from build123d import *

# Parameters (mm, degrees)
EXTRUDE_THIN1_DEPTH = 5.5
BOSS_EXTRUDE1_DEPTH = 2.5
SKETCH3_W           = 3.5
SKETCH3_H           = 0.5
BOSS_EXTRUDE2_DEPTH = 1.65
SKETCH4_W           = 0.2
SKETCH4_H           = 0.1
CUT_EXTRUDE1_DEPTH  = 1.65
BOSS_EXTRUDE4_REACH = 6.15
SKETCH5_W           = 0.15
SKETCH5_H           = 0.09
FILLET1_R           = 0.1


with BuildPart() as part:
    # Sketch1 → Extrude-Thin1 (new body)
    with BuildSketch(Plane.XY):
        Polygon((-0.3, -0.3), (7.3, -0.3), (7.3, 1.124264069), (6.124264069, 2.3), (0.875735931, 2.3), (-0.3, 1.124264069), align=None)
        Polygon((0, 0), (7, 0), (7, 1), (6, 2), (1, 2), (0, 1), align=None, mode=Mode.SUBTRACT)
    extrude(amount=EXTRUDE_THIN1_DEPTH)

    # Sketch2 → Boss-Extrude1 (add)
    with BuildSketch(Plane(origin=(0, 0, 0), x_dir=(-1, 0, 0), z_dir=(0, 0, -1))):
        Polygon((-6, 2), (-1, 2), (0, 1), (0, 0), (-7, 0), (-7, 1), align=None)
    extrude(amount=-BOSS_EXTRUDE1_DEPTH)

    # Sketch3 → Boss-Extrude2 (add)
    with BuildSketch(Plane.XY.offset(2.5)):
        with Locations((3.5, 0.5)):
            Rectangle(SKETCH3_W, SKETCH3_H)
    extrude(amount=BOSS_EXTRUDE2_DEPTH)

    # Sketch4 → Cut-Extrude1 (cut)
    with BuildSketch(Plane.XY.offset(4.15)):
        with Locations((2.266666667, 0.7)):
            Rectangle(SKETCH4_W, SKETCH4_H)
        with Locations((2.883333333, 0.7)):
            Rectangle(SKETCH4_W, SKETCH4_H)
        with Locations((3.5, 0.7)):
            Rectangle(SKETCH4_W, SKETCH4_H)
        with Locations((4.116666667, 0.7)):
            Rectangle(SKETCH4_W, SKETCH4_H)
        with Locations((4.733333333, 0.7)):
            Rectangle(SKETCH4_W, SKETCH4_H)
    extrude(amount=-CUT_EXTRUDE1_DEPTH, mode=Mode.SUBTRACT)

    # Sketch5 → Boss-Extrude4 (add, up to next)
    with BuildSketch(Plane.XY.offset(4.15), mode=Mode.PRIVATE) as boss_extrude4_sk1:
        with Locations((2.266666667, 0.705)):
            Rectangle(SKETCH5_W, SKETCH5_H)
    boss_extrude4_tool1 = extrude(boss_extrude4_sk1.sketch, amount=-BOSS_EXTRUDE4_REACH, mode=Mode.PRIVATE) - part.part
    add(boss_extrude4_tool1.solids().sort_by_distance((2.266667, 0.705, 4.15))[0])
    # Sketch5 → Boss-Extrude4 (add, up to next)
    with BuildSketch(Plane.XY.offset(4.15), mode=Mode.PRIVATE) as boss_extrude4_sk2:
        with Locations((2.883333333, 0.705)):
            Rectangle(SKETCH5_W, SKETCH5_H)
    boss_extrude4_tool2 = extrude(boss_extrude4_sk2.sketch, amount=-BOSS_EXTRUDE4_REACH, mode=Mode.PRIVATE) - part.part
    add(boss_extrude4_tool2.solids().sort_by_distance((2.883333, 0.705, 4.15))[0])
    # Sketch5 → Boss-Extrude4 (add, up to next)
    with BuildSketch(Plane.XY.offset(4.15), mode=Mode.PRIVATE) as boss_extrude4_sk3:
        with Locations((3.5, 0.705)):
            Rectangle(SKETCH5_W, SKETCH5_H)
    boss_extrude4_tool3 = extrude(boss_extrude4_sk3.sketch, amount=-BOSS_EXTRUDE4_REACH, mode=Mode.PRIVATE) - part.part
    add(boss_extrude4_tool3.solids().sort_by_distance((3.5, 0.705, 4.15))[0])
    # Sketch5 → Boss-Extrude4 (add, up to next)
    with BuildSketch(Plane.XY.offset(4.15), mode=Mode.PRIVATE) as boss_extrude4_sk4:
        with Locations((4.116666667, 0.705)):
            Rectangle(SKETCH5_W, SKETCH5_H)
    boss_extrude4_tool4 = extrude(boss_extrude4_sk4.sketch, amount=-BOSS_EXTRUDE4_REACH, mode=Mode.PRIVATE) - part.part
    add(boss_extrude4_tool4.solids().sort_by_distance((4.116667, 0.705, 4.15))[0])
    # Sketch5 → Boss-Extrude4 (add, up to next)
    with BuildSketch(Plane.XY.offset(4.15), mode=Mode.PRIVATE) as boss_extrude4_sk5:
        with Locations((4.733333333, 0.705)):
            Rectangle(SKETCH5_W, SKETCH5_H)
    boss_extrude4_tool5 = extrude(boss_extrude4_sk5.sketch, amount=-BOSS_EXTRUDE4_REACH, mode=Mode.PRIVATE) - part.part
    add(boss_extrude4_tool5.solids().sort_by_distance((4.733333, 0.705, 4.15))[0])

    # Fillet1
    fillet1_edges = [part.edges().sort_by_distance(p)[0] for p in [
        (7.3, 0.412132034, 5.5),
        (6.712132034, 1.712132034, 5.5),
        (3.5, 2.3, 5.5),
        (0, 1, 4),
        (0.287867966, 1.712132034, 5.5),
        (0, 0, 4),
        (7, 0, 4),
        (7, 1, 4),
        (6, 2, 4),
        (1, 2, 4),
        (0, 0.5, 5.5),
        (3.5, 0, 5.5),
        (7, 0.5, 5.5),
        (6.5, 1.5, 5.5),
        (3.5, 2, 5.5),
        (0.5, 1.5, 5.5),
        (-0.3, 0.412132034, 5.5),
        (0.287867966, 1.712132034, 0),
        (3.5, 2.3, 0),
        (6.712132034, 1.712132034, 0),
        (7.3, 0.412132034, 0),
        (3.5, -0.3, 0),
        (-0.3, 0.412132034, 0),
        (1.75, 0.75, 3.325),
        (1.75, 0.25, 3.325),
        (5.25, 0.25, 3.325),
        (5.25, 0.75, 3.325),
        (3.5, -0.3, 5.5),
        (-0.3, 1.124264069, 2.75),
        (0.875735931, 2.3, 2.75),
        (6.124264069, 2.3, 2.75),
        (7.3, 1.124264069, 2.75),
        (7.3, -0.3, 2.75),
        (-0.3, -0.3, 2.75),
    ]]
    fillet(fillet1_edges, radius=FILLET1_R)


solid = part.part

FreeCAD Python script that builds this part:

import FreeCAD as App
import Part
import Sketcher
from FreeCAD import Vector


def edges_at(feature, points):
    """Names of the edges that pass closest to the given points."""
    edges = feature.Shape.Edges
    near = lambda p: min(range(len(edges)), key=lambda i: edges[i].distToShape(Part.Vertex(*p))[0])
    return sorted({f"Edge{near(p) + 1}" for p in points})

doc = App.newDocument("Part")
body = doc.addObject("PartDesign::Body", "Body")

# Sketch on XY plane
sketch1 = body.newObject("Sketcher::SketchObject", "Sketch")
sketch1.AttachmentSupport = (doc.getObject("XY_Plane"), [""])
sketch1.MapMode = "FlatFace"
sketch1.addGeometry([
    Part.LineSegment(Vector(-0.3, -0.3, 0), Vector(7.3, -0.3, 0)),  # 0
    Part.LineSegment(Vector(7.3, -0.3, 0), Vector(7.3, 1.1, 0)),  # 1
    Part.LineSegment(Vector(7.3, 1.1, 0), Vector(6.1, 2.3, 0)),  # 2
    Part.LineSegment(Vector(6.1, 2.3, 0), Vector(0.9, 2.3, 0)),  # 3
    Part.LineSegment(Vector(0.9, 2.3, 0), Vector(-0.3, 1.1, 0)),  # 4
    Part.LineSegment(Vector(-0.3, 1.1, 0), Vector(-0.3, -0.3, 0)),  # 5
    Part.LineSegment(Vector(7, 0, 0), Vector(0, 0, 0)),  # 6
    Part.LineSegment(Vector(0, 0, 0), Vector(0, 1, 0)),  # 7
    Part.LineSegment(Vector(0, 1, 0), Vector(1, 2, 0)),  # 8
    Part.LineSegment(Vector(1, 2, 0), Vector(6, 2, 0)),  # 9
    Part.LineSegment(Vector(6, 2, 0), Vector(7, 1, 0)),  # 10
    Part.LineSegment(Vector(7, 1, 0), Vector(7, 0, 0)),  # 11
], False)
sketch1.addConstraint([
    Sketcher.Constraint("Coincident", 0, 2, 1, 1),
    Sketcher.Constraint("Coincident", 1, 2, 2, 1),
    Sketcher.Constraint("Coincident", 2, 2, 3, 1),
    Sketcher.Constraint("Coincident", 3, 2, 4, 1),
    Sketcher.Constraint("Coincident", 4, 2, 5, 1),
    Sketcher.Constraint("Coincident", 5, 2, 0, 1),
    Sketcher.Constraint("Coincident", 6, 2, 7, 1),
    Sketcher.Constraint("Coincident", 7, 2, 8, 1),
    Sketcher.Constraint("Coincident", 8, 2, 9, 1),
    Sketcher.Constraint("Coincident", 9, 2, 10, 1),
    Sketcher.Constraint("Coincident", 10, 2, 11, 1),
    Sketcher.Constraint("Coincident", 11, 2, 6, 1),
    Sketcher.Constraint("Horizontal", 0),
    Sketcher.Constraint("Vertical", 1),
    Sketcher.Constraint("Horizontal", 3),
    Sketcher.Constraint("Vertical", 5),
    Sketcher.Constraint("Horizontal", 6),
    Sketcher.Constraint("Vertical", 7),
    Sketcher.Constraint("Horizontal", 9),
    Sketcher.Constraint("Vertical", 11),
    Sketcher.Constraint("Coincident", 6, 2, -1, 1),
    Sketcher.Constraint("Perpendicular", 2, 4),
    Sketcher.Constraint("Parallel", 4, 8),
    Sketcher.Constraint("Perpendicular", 8, 10),
    Sketcher.Constraint("Horizontal", 1, 2, 4, 2),
    Sketcher.Constraint("Horizontal", 7, 2, 10, 2),
    Sketcher.Constraint("Equal", 2, 4),
    Sketcher.Constraint("DistanceX", 6, 2, 6, 1, 7.0),
    Sketcher.Constraint("DistanceX", 9, 1, 9, 2, 5.0),
    Sketcher.Constraint("DistanceY", 7, 1, 7, 2, 1.0),
    Sketcher.Constraint("DistanceX", 0, 1, 0, 2, 7.6),
    Sketcher.Constraint("DistanceX", -1, 1, 0, 2, 7.3),
    Sketcher.Constraint("DistanceY", 0, 2, -1, 1, 0.3),
    Sketcher.Constraint("DistanceY", -1, 1, 2, 2, 2.3),
    Sketcher.Constraint("DistanceX", 3, 2, 3, 1, 5.248528),
])
pad1 = body.newObject("PartDesign::Pad", "Pad")
pad1.Profile = sketch1
pad1.Length = 5.5

# Sketch on XY plane
sketch2 = body.newObject("Sketcher::SketchObject", "Sketch001")
sketch2.AttachmentSupport = (doc.getObject("XY_Plane"), [""])
sketch2.MapMode = "FlatFace"
sketch2.addGeometry([
    Part.LineSegment(Vector(1, 2, 0), Vector(6, 2, 0)),  # 0
    Part.LineSegment(Vector(6, 2, 0), Vector(7, 1, 0)),  # 1
    Part.LineSegment(Vector(7, 1, 0), Vector(7, 0, 0)),  # 2
    Part.LineSegment(Vector(7, 0, 0), Vector(0, 0, 0)),  # 3
    Part.LineSegment(Vector(0, 0, 0), Vector(0, 1, 0)),  # 4
    Part.LineSegment(Vector(0, 1, 0), Vector(1, 2, 0)),  # 5
], False)
sketch2.addConstraint([
    Sketcher.Constraint("Coincident", 0, 2, 1, 1),
    Sketcher.Constraint("Coincident", 1, 2, 2, 1),
    Sketcher.Constraint("Coincident", 2, 2, 3, 1),
    Sketcher.Constraint("Coincident", 3, 2, 4, 1),
    Sketcher.Constraint("Coincident", 4, 2, 5, 1),
    Sketcher.Constraint("Coincident", 5, 2, 0, 1),
    Sketcher.Constraint("Horizontal", 0),
    Sketcher.Constraint("Vertical", 2),
    Sketcher.Constraint("Horizontal", 3),
    Sketcher.Constraint("Vertical", 4),
    Sketcher.Constraint("Coincident", 3, 2, -1, 1),
    Sketcher.Constraint("Perpendicular", 1, 5),
    Sketcher.Constraint("Horizontal", 1, 2, 4, 2),
    Sketcher.Constraint("Equal", 1, 5),
    Sketcher.Constraint("DistanceX", 0, 1, 0, 2, 5.0),
    Sketcher.Constraint("DistanceX", 3, 2, 3, 1, 7.0),
    Sketcher.Constraint("DistanceY", 2, 2, 2, 1, 1.0),
])
pad2 = body.newObject("PartDesign::Pad", "Pad001")
pad2.Profile = sketch2
pad2.Length = 2.5

# Sketch on XY plane
sketch3 = body.newObject("Sketcher::SketchObject", "Sketch002")
sketch3.AttachmentSupport = (doc.getObject("XY_Plane"), [""])
sketch3.MapMode = "FlatFace"
sketch3.AttachmentOffset = App.Placement(Vector(0, 0, 2.5), App.Rotation())
sketch3.addGeometry([
    Part.LineSegment(Vector(1.8, 0.8, 0), Vector(1.8, 0.2, 0)),
    Part.LineSegment(Vector(1.8, 0.2, 0), Vector(5.2, 0.2, 0)),
    Part.LineSegment(Vector(5.2, 0.2, 0), Vector(5.2, 0.8, 0)),
    Part.LineSegment(Vector(5.2, 0.8, 0), Vector(1.8, 0.8, 0)),
], False)
sketch3.addConstraint([
    Sketcher.Constraint("Coincident", 0, 2, 1, 1),
    Sketcher.Constraint("Coincident", 1, 2, 2, 1),
    Sketcher.Constraint("Coincident", 2, 2, 3, 1),
    Sketcher.Constraint("Coincident", 3, 2, 0, 1),
    Sketcher.Constraint("Vertical", 0),
    Sketcher.Constraint("Horizontal", 1),
    Sketcher.Constraint("Vertical", 2),
    Sketcher.Constraint("Horizontal", 3),
    Sketcher.Constraint("DistanceX", 1, 1, 1, 2, 3.5),
    Sketcher.Constraint("DistanceY", 0, 2, 0, 1, 0.5),
    Sketcher.Constraint("DistanceX", -1, 1, 0, 2, 1.75),
    Sketcher.Constraint("DistanceY", -1, 1, 0, 2, 0.25),
])
pad3 = body.newObject("PartDesign::Pad", "Pad002")
pad3.Profile = sketch3
pad3.Length = 1.65

# Sketch on XY plane
sketch4 = body.newObject("Sketcher::SketchObject", "Sketch003")
sketch4.AttachmentSupport = (doc.getObject("XY_Plane"), [""])
sketch4.MapMode = "FlatFace"
sketch4.AttachmentOffset = App.Placement(Vector(0, 0, 4.15), App.Rotation())
sketch4.addGeometry([
    Part.LineSegment(Vector(2.17, 0.75, 0), Vector(2.17, 0.65, 0)),  # 0
    Part.LineSegment(Vector(2.17, 0.65, 0), Vector(2.37, 0.65, 0)),  # 1
    Part.LineSegment(Vector(2.37, 0.65, 0), Vector(2.37, 0.75, 0)),  # 2
    Part.LineSegment(Vector(2.37, 0.75, 0), Vector(2.17, 0.75, 0)),  # 3
    Part.LineSegment(Vector(2.78, 0.75, 0), Vector(2.78, 0.65, 0)),  # 4
    Part.LineSegment(Vector(2.78, 0.65, 0), Vector(2.98, 0.65, 0)),  # 5
    Part.LineSegment(Vector(2.98, 0.65, 0), Vector(2.98, 0.75, 0)),  # 6
    Part.LineSegment(Vector(2.98, 0.75, 0), Vector(2.78, 0.75, 0)),  # 7
    Part.LineSegment(Vector(3.4, 0.75, 0), Vector(3.4, 0.65, 0)),  # 8
    Part.LineSegment(Vector(3.4, 0.65, 0), Vector(3.6, 0.65, 0)),  # 9
    Part.LineSegment(Vector(3.6, 0.65, 0), Vector(3.6, 0.75, 0)),  # 10
    Part.LineSegment(Vector(3.6, 0.75, 0), Vector(3.4, 0.75, 0)),  # 11
    Part.LineSegment(Vector(4.02, 0.75, 0), Vector(4.02, 0.65, 0)),  # 12
    Part.LineSegment(Vector(4.02, 0.65, 0), Vector(4.22, 0.65, 0)),  # 13
    Part.LineSegment(Vector(4.22, 0.65, 0), Vector(4.22, 0.75, 0)),  # 14
    Part.LineSegment(Vector(4.22, 0.75, 0), Vector(4.02, 0.75, 0)),  # 15
    Part.LineSegment(Vector(4.63, 0.75, 0), Vector(4.63, 0.65, 0)),  # 16
    Part.LineSegment(Vector(4.63, 0.65, 0), Vector(4.83, 0.65, 0)),  # 17
    Part.LineSegment(Vector(4.83, 0.65, 0), Vector(4.83, 0.75, 0)),  # 18
    Part.LineSegment(Vector(4.83, 0.75, 0), Vector(4.63, 0.75, 0)),  # 19
], False)
sketch4.addConstraint([
    Sketcher.Constraint("Coincident", 0, 2, 1, 1),
    Sketcher.Constraint("Coincident", 1, 2, 2, 1),
    Sketcher.Constraint("Coincident", 2, 2, 3, 1),
    Sketcher.Constraint("Coincident", 3, 2, 0, 1),
    Sketcher.Constraint("Coincident", 4, 2, 5, 1),
    Sketcher.Constraint("Coincident", 5, 2, 6, 1),
    Sketcher.Constraint("Coincident", 6, 2, 7, 1),
    Sketcher.Constraint("Coincident", 7, 2, 4, 1),
    Sketcher.Constraint("Coincident", 8, 2, 9, 1),
    Sketcher.Constraint("Coincident", 9, 2, 10, 1),
    Sketcher.Constraint("Coincident", 10, 2, 11, 1),
    Sketcher.Constraint("Coincident", 11, 2, 8, 1),
    Sketcher.Constraint("Coincident", 12, 2, 13, 1),
    Sketcher.Constraint("Coincident", 13, 2, 14, 1),
    Sketcher.Constraint("Coincident", 14, 2, 15, 1),
    Sketcher.Constraint("Coincident", 15, 2, 12, 1),
    Sketcher.Constraint("Coincident", 16, 2, 17, 1),
    Sketcher.Constraint("Coincident", 17, 2, 18, 1),
    Sketcher.Constraint("Coincident", 18, 2, 19, 1),
    Sketcher.Constraint("Coincident", 19, 2, 16, 1),
    Sketcher.Constraint("Vertical", 0),
    Sketcher.Constraint("Horizontal", 1),
    Sketcher.Constraint("Vertical", 2),
    Sketcher.Constraint("Horizontal", 3),
    Sketcher.Constraint("Vertical", 4),
    Sketcher.Constraint("Horizontal", 5),
    Sketcher.Constraint("Vertical", 6),
    Sketcher.Constraint("Horizontal", 7),
    Sketcher.Constraint("Vertical", 8),
    Sketcher.Constraint("Horizontal", 9),
    Sketcher.Constraint("Vertical", 10),
    Sketcher.Constraint("Horizontal", 11),
    Sketcher.Constraint("Vertical", 12),
    Sketcher.Constraint("Horizontal", 13),
    Sketcher.Constraint("Vertical", 14),
    Sketcher.Constraint("Horizontal", 15),
    Sketcher.Constraint("Vertical", 16),
    Sketcher.Constraint("Horizontal", 17),
    Sketcher.Constraint("Vertical", 18),
    Sketcher.Constraint("Horizontal", 19),
    Sketcher.Constraint("Horizontal", 1, 2, 4, 2),
    Sketcher.Constraint("Horizontal", 3, 2, 6, 2),
    Sketcher.Constraint("Horizontal", 5, 2, 8, 2),
    Sketcher.Constraint("Horizontal", 7, 2, 10, 2),
    Sketcher.Constraint("Horizontal", 9, 2, 12, 2),
    Sketcher.Constraint("Horizontal", 11, 2, 14, 2),
    Sketcher.Constraint("Horizontal", 13, 2, 16, 2),
    Sketcher.Constraint("Horizontal", 15, 2, 18, 2),
    Sketcher.Constraint("Equal", 3, 5),
    Sketcher.Constraint("Equal", 7, 9),
    Sketcher.Constraint("Equal", 11, 13),
    Sketcher.Constraint("Equal", 15, 17),
    Sketcher.Constraint("DistanceX", 1, 1, 1, 2, 0.2),
    Sketcher.Constraint("DistanceY", 0, 2, 0, 1, 0.1),
    Sketcher.Constraint("DistanceX", -1, 1, 8, 2, 3.4),
    Sketcher.Constraint("DistanceY", -1, 1, 0, 2, 0.65),
    Sketcher.Constraint("DistanceX", -1, 1, 0, 2, 2.166667),
    Sketcher.Constraint("DistanceX", -1, 1, 4, 2, 2.783333),
    Sketcher.Constraint("DistanceX", -1, 1, 12, 2, 4.016667),
    Sketcher.Constraint("DistanceX", -1, 1, 16, 2, 4.633333),
])
pocket1 = body.newObject("PartDesign::Pocket", "Pocket")
pocket1.Profile = sketch4
pocket1.Length = 1.65

# Sketch on XY plane
sketch5 = body.newObject("Sketcher::SketchObject", "Sketch004")
sketch5.AttachmentSupport = (doc.getObject("XY_Plane"), [""])
sketch5.MapMode = "FlatFace"
sketch5.AttachmentOffset = App.Placement(Vector(0, 0, 4.15), App.Rotation())
sketch5.addGeometry([
    Part.LineSegment(Vector(2.19, 0.75, 0), Vector(2.19, 0.66, 0)),
    Part.LineSegment(Vector(2.19, 0.66, 0), Vector(2.34, 0.66, 0)),
    Part.LineSegment(Vector(2.34, 0.66, 0), Vector(2.34, 0.75, 0)),
    Part.LineSegment(Vector(2.34, 0.75, 0), Vector(2.19, 0.75, 0)),
], False)
sketch5.addConstraint([
    Sketcher.Constraint("Coincident", 0, 2, 1, 1),
    Sketcher.Constraint("Coincident", 1, 2, 2, 1),
    Sketcher.Constraint("Coincident", 2, 2, 3, 1),
    Sketcher.Constraint("Coincident", 3, 2, 0, 1),
    Sketcher.Constraint("Vertical", 0),
    Sketcher.Constraint("Horizontal", 1),
    Sketcher.Constraint("Vertical", 2),
    Sketcher.Constraint("Horizontal", 3),
    Sketcher.Constraint("DistanceX", 1, 1, 1, 2, 0.15),
    Sketcher.Constraint("DistanceY", 0, 2, 0, 1, 0.09),
    Sketcher.Constraint("DistanceY", -1, 1, 0, 2, 0.66),
    Sketcher.Constraint("DistanceX", -1, 1, 0, 2, 2.191667),
])
pad4 = body.newObject("PartDesign::Pad", "Pad003")
pad4.Profile = sketch5
pad4.Type = "UpToFirst"
pad4.Reversed = True

# Sketch on XY plane
sketch6 = body.newObject("Sketcher::SketchObject", "Sketch005")
sketch6.AttachmentSupport = (doc.getObject("XY_Plane"), [""])
sketch6.MapMode = "FlatFace"
sketch6.AttachmentOffset = App.Placement(Vector(0, 0, 4.15), App.Rotation())
sketch6.addGeometry([
    Part.LineSegment(Vector(2.81, 0.75, 0), Vector(2.81, 0.66, 0)),
    Part.LineSegment(Vector(2.81, 0.66, 0), Vector(2.96, 0.66, 0)),
    Part.LineSegment(Vector(2.96, 0.66, 0), Vector(2.96, 0.75, 0)),
    Part.LineSegment(Vector(2.96, 0.75, 0), Vector(2.81, 0.75, 0)),
], False)
sketch6.addConstraint([
    Sketcher.Constraint("Coincident", 0, 2, 1, 1),
    Sketcher.Constraint("Coincident", 1, 2, 2, 1),
    Sketcher.Constraint("Coincident", 2, 2, 3, 1),
    Sketcher.Constraint("Coincident", 3, 2, 0, 1),
    Sketcher.Constraint("Vertical", 0),
    Sketcher.Constraint("Horizontal", 1),
    Sketcher.Constraint("Vertical", 2),
    Sketcher.Constraint("Horizontal", 3),
    Sketcher.Constraint("DistanceX", 1, 1, 1, 2, 0.15),
    Sketcher.Constraint("DistanceY", 0, 2, 0, 1, 0.09),
    Sketcher.Constraint("DistanceY", -1, 1, 0, 2, 0.66),
    Sketcher.Constraint("DistanceX", -1, 1, 0, 2, 2.808333),
])
pad5 = body.newObject("PartDesign::Pad", "Pad004")
pad5.Profile = sketch6
pad5.Type = "UpToFirst"
pad5.Reversed = True

# Sketch on XY plane
sketch7 = body.newObject("Sketcher::SketchObject", "Sketch006")
sketch7.AttachmentSupport = (doc.getObject("XY_Plane"), [""])
sketch7.MapMode = "FlatFace"
sketch7.AttachmentOffset = App.Placement(Vector(0, 0, 4.15), App.Rotation())
sketch7.addGeometry([
    Part.LineSegment(Vector(3.42, 0.75, 0), Vector(3.42, 0.66, 0)),
    Part.LineSegment(Vector(3.42, 0.66, 0), Vector(3.58, 0.66, 0)),
    Part.LineSegment(Vector(3.58, 0.66, 0), Vector(3.58, 0.75, 0)),
    Part.LineSegment(Vector(3.58, 0.75, 0), Vector(3.42, 0.75, 0)),
], False)
sketch7.addConstraint([
    Sketcher.Constraint("Coincident", 0, 2, 1, 1),
    Sketcher.Constraint("Coincident", 1, 2, 2, 1),
    Sketcher.Constraint("Coincident", 2, 2, 3, 1),
    Sketcher.Constraint("Coincident", 3, 2, 0, 1),
    Sketcher.Constraint("Vertical", 0),
    Sketcher.Constraint("Horizontal", 1),
    Sketcher.Constraint("Vertical", 2),
    Sketcher.Constraint("Horizontal", 3),
    Sketcher.Constraint("DistanceX", 1, 1, 1, 2, 0.15),
    Sketcher.Constraint("DistanceY", 0, 2, 0, 1, 0.09),
    Sketcher.Constraint("DistanceY", -1, 1, 0, 2, 0.66),
    Sketcher.Constraint("DistanceX", -1, 1, 0, 2, 3.425),
])
pad6 = body.newObject("PartDesign::Pad", "Pad005")
pad6.Profile = sketch7
pad6.Type = "UpToFirst"
pad6.Reversed = True

# Sketch on XY plane
sketch8 = body.newObject("Sketcher::SketchObject", "Sketch007")
sketch8.AttachmentSupport = (doc.getObject("XY_Plane"), [""])
sketch8.MapMode = "FlatFace"
sketch8.AttachmentOffset = App.Placement(Vector(0, 0, 4.15), App.Rotation())
sketch8.addGeometry([
    Part.LineSegment(Vector(4.04, 0.75, 0), Vector(4.04, 0.66, 0)),
    Part.LineSegment(Vector(4.04, 0.66, 0), Vector(4.19, 0.66, 0)),
    Part.LineSegment(Vector(4.19, 0.66, 0), Vector(4.19, 0.75, 0)),
    Part.LineSegment(Vector(4.19, 0.75, 0), Vector(4.04, 0.75, 0)),
], False)
sketch8.addConstraint([
    Sketcher.Constraint("Coincident", 0, 2, 1, 1),
    Sketcher.Constraint("Coincident", 1, 2, 2, 1),
    Sketcher.Constraint("Coincident", 2, 2, 3, 1),
    Sketcher.Constraint("Coincident", 3, 2, 0, 1),
    Sketcher.Constraint("Vertical", 0),
    Sketcher.Constraint("Horizontal", 1),
    Sketcher.Constraint("Vertical", 2),
    Sketcher.Constraint("Horizontal", 3),
    Sketcher.Constraint("DistanceX", 1, 1, 1, 2, 0.15),
    Sketcher.Constraint("DistanceY", 0, 2, 0, 1, 0.09),
    Sketcher.Constraint("DistanceY", -1, 1, 0, 2, 0.66),
    Sketcher.Constraint("DistanceX", -1, 1, 0, 2, 4.041667),
])
pad7 = body.newObject("PartDesign::Pad", "Pad006")
pad7.Profile = sketch8
pad7.Type = "UpToFirst"
pad7.Reversed = True

# Sketch on XY plane
sketch9 = body.newObject("Sketcher::SketchObject", "Sketch008")
sketch9.AttachmentSupport = (doc.getObject("XY_Plane"), [""])
sketch9.MapMode = "FlatFace"
sketch9.AttachmentOffset = App.Placement(Vector(0, 0, 4.15), App.Rotation())
sketch9.addGeometry([
    Part.LineSegment(Vector(4.66, 0.75, 0), Vector(4.66, 0.66, 0)),
    Part.LineSegment(Vector(4.66, 0.66, 0), Vector(4.81, 0.66, 0)),
    Part.LineSegment(Vector(4.81, 0.66, 0), Vector(4.81, 0.75, 0)),
    Part.LineSegment(Vector(4.81, 0.75, 0), Vector(4.66, 0.75, 0)),
], False)
sketch9.addConstraint([
    Sketcher.Constraint("Coincident", 0, 2, 1, 1),
    Sketcher.Constraint("Coincident", 1, 2, 2, 1),
    Sketcher.Constraint("Coincident", 2, 2, 3, 1),
    Sketcher.Constraint("Coincident", 3, 2, 0, 1),
    Sketcher.Constraint("Vertical", 0),
    Sketcher.Constraint("Horizontal", 1),
    Sketcher.Constraint("Vertical", 2),
    Sketcher.Constraint("Horizontal", 3),
    Sketcher.Constraint("DistanceX", 1, 1, 1, 2, 0.15),
    Sketcher.Constraint("DistanceY", 0, 2, 0, 1, 0.09),
    Sketcher.Constraint("DistanceY", -1, 1, 0, 2, 0.66),
    Sketcher.Constraint("DistanceX", -1, 1, 0, 2, 4.658333),
])
pad8 = body.newObject("PartDesign::Pad", "Pad007")
pad8.Profile = sketch9
pad8.Type = "UpToFirst"
pad8.Reversed = True
doc.recompute()

fillet = body.newObject("PartDesign::Fillet", "Fillet")
fillet.Base = (pad8, edges_at(pad8, [
    (7.3, 0.412, 5.5),
    (6.712, 1.712, 5.5),
    (3.5, 2.3, 5.5),
    (0, 1, 4),
    (0.288, 1.712, 5.5),
    (0, 0, 4),
    (7, 0, 4),
    (7, 1, 4),
    (6, 2, 4),
    (1, 2, 4),
    (0, 0.5, 5.5),
    (3.5, 0, 5.5),
    (7, 0.5, 5.5),
    (6.5, 1.5, 5.5),
    (3.5, 2, 5.5),
    (0.5, 1.5, 5.5),
    (-0.3, 0.412, 5.5),
    (0.288, 1.712, 0),
    (3.5, 2.3, 0),
    (6.712, 1.712, 0),
    (7.3, 0.412, 0),
    (3.5, -0.3, 0),
    (-0.3, 0.412, 0),
    (1.75, 0.75, 3.325),
    (1.75, 0.25, 3.325),
    (5.25, 0.25, 3.325),
    (5.25, 0.75, 3.325),
    (3.5, -0.3, 5.5),
    (-0.3, 1.124, 2.75),
    (0.876, 2.3, 2.75),
    (6.124, 2.3, 2.75),
    (7.3, 1.124, 2.75),
    (7.3, -0.3, 2.75),
    (-0.3, -0.3, 2.75),
]))
fillet.Radius = 0.1

doc.recompute()
